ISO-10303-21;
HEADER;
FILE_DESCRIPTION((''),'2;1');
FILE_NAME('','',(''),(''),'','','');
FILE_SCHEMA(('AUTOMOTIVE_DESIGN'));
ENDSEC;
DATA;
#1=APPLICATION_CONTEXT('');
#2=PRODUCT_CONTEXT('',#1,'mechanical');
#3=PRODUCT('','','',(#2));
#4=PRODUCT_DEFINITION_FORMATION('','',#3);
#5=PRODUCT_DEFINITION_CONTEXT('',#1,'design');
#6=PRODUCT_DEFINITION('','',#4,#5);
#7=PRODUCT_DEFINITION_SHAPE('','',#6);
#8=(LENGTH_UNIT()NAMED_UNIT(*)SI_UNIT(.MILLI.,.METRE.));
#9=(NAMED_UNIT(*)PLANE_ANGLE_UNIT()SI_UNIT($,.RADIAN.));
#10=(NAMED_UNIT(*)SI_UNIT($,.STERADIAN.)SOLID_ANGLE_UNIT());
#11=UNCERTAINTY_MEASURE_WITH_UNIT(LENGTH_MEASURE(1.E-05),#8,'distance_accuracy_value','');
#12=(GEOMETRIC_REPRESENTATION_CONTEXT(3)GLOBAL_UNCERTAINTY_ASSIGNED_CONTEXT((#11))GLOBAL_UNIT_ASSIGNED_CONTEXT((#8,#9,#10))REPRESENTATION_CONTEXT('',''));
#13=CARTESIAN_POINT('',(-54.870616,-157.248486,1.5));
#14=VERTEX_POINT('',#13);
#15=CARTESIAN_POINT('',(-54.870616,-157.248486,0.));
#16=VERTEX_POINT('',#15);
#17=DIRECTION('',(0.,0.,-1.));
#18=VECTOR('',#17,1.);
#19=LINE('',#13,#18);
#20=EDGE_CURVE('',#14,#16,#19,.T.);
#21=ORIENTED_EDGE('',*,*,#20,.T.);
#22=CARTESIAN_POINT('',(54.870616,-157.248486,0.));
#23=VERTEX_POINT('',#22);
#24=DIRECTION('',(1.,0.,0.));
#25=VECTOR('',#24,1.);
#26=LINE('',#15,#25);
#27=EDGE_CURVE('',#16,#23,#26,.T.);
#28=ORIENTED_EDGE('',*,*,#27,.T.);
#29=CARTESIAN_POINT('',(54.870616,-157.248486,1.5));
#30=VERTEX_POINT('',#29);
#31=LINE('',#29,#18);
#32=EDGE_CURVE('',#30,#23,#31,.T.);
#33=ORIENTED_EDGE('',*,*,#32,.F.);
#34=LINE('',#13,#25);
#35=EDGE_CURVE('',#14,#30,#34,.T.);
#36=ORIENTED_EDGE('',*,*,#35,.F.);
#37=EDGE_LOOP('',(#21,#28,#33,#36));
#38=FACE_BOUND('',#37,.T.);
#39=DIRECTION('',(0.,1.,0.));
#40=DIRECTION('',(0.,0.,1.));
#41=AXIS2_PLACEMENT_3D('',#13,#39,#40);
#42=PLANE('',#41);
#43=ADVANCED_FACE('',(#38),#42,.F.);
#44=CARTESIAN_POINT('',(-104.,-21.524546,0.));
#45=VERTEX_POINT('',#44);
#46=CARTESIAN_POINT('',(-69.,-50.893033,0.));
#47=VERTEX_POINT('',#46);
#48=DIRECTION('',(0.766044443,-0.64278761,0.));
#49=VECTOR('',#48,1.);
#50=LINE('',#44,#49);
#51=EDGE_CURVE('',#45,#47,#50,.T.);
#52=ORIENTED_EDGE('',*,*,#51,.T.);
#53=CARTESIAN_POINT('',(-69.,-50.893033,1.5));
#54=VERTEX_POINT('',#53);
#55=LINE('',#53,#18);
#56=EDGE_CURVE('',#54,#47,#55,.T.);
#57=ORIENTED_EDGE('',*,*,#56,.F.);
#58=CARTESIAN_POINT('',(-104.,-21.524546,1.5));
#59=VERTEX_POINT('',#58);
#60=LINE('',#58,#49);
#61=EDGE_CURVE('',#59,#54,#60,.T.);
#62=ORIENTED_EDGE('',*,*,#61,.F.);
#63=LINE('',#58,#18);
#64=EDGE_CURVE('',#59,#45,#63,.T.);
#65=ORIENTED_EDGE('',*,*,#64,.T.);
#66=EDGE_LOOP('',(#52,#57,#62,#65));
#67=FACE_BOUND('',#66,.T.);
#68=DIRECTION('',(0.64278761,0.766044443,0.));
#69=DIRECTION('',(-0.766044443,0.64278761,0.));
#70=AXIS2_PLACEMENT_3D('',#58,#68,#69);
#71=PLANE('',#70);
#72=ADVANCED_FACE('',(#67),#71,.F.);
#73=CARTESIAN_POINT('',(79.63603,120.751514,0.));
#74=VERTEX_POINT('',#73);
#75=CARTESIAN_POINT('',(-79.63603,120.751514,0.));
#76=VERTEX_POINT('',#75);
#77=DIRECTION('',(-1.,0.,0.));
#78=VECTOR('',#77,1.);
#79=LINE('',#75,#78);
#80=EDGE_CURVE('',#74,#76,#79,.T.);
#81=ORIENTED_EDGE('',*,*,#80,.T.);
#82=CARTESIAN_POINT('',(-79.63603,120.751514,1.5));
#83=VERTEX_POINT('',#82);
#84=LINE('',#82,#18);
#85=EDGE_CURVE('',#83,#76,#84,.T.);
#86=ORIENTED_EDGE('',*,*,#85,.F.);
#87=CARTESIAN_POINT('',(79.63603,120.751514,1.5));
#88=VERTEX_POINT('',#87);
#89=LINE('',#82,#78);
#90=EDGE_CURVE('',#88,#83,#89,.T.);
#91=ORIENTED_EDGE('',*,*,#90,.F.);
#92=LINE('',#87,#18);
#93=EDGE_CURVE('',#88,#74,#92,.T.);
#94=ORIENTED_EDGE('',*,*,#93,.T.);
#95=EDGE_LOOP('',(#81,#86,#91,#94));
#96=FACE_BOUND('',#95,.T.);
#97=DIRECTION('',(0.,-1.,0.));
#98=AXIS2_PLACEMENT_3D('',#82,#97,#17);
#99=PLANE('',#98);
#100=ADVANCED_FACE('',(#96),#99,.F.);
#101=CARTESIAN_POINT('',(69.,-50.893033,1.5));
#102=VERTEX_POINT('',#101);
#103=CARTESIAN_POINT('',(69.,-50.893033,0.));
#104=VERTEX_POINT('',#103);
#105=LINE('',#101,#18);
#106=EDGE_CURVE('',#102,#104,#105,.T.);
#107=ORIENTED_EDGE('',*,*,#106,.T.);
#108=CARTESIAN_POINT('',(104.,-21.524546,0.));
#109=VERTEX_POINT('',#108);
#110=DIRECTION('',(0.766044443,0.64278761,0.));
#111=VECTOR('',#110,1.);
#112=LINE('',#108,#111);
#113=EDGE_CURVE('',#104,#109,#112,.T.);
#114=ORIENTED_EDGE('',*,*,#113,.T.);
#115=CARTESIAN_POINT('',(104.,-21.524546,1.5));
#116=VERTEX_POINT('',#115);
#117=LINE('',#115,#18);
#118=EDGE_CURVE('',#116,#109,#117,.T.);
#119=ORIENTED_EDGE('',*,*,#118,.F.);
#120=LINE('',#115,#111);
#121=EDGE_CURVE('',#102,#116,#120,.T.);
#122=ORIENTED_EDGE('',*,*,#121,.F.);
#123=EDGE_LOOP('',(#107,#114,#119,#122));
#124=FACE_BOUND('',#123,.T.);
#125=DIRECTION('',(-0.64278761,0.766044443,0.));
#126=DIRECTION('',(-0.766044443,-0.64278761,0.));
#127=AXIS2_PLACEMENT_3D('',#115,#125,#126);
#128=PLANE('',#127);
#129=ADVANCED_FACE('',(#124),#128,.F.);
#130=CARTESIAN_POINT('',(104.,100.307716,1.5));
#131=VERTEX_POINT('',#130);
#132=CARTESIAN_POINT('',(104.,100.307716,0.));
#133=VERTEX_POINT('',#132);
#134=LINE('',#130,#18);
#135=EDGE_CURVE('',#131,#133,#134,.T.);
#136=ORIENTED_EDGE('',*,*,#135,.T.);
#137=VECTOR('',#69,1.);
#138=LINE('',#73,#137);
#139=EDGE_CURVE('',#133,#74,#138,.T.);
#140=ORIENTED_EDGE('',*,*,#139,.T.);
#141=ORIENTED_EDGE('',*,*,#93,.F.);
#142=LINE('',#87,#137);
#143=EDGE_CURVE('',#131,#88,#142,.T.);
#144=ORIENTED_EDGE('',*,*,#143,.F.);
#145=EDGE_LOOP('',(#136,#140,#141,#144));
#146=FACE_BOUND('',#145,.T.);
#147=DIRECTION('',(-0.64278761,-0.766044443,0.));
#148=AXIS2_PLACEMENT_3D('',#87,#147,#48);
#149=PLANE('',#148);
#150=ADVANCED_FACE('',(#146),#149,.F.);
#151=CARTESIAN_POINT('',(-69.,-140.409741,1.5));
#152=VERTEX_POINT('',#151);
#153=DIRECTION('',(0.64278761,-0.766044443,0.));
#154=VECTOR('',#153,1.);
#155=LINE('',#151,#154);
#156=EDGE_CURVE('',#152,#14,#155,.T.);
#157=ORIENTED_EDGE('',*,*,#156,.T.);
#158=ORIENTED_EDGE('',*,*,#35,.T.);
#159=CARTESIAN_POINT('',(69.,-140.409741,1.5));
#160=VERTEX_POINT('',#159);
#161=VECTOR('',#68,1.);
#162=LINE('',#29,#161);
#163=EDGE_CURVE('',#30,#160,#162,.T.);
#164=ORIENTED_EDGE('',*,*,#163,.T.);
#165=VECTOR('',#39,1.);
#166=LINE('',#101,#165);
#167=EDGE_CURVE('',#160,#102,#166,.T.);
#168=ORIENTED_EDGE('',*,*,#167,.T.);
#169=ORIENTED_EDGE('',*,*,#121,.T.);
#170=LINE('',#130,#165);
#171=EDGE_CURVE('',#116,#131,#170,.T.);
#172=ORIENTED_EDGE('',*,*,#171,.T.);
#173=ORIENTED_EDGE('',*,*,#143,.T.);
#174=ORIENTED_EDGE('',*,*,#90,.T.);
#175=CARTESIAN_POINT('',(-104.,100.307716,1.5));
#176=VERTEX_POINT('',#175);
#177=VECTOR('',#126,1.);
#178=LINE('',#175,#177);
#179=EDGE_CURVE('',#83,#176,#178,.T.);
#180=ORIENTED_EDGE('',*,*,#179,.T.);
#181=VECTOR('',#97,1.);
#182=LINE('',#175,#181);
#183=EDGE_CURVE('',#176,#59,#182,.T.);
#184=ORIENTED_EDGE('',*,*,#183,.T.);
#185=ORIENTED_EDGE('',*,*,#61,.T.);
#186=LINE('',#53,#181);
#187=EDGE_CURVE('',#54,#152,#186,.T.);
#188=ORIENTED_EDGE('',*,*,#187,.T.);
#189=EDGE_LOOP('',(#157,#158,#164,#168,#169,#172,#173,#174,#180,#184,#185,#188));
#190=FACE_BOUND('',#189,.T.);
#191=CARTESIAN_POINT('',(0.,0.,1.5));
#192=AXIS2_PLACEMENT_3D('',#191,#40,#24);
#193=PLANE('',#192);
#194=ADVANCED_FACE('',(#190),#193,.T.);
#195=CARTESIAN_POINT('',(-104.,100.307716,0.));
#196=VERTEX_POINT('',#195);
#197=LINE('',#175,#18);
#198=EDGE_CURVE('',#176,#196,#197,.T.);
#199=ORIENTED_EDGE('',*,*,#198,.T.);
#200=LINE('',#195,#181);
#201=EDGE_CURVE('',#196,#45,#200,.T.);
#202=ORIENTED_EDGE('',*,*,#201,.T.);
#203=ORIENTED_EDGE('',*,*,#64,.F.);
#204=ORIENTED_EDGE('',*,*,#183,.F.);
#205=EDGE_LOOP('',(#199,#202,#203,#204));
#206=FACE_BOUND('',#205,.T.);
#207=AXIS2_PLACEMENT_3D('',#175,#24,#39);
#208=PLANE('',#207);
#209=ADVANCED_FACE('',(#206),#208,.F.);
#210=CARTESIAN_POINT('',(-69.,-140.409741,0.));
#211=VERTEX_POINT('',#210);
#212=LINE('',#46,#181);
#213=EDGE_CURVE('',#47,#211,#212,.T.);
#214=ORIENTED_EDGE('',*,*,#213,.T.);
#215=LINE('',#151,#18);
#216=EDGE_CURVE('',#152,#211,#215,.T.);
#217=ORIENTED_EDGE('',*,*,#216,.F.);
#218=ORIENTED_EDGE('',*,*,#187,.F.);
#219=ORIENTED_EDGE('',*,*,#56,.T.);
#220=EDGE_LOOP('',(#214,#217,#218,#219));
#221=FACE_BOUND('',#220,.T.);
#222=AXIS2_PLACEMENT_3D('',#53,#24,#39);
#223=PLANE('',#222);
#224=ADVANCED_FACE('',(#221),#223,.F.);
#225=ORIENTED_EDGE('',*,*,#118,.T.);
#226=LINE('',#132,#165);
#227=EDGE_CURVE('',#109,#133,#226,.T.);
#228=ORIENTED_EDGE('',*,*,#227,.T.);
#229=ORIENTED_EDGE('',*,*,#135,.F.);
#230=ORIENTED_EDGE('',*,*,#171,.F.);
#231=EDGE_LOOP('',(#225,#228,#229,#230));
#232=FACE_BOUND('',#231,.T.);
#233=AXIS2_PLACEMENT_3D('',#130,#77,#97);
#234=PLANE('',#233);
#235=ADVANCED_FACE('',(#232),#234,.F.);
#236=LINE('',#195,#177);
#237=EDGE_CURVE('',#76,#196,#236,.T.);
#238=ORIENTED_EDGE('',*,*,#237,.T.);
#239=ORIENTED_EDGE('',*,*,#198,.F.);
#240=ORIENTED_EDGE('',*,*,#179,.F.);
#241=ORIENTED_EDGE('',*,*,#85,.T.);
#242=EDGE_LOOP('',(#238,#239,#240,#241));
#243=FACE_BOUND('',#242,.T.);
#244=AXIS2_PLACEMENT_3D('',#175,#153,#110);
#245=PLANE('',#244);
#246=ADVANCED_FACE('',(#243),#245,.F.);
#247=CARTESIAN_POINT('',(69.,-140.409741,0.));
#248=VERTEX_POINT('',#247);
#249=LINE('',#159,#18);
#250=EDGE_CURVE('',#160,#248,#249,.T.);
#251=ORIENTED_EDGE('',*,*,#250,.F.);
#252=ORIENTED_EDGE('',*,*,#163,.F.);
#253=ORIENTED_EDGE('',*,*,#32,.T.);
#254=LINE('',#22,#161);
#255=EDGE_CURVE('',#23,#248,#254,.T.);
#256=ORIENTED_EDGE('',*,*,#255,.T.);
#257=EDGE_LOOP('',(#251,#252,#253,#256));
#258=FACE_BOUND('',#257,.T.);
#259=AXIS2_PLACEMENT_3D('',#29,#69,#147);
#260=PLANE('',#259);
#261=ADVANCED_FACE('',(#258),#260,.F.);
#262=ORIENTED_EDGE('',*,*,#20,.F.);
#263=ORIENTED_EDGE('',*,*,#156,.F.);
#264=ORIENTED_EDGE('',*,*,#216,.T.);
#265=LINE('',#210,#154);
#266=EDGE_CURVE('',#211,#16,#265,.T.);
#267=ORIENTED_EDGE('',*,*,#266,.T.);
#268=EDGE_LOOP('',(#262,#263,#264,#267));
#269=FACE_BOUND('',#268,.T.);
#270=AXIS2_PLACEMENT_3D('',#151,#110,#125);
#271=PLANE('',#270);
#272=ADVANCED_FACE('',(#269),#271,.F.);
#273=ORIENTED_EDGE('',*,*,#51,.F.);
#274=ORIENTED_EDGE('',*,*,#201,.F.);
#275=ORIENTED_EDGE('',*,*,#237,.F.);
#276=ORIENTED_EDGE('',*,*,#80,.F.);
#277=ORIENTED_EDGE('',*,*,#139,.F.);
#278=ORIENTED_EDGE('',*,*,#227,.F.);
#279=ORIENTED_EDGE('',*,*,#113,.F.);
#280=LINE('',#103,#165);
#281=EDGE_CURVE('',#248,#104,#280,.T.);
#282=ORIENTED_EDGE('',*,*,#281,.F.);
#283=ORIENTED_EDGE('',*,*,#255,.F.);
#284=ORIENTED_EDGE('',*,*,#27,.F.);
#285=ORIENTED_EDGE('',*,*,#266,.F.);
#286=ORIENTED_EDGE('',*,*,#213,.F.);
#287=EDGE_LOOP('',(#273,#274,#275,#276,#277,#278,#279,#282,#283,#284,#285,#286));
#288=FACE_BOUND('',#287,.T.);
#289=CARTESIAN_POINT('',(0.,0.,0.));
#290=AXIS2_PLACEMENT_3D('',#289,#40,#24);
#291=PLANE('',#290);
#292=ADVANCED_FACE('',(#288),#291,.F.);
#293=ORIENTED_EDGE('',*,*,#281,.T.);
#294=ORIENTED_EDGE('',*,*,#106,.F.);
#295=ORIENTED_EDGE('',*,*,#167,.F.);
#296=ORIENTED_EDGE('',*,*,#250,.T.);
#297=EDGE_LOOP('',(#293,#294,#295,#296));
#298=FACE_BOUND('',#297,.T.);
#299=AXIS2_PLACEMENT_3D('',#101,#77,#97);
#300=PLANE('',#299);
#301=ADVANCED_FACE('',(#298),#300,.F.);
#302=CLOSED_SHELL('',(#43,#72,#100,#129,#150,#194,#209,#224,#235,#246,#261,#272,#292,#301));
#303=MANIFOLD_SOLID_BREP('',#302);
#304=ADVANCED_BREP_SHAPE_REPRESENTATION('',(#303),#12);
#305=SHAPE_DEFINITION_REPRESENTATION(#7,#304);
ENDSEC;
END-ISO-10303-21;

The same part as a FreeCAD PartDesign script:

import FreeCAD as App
import Part
import Sketcher
Q = App.Units.Quantity

doc = App.newDocument("Part")
body = doc.addObject("PartDesign::Body", "Body")

# Sketch on XY plane
sketch1 = doc.addObject("Sketcher::SketchObject", "Sketch")
body.addObject(sketch1)
sketch1.AttachmentSupport = (doc.XY_Plane, [""])
sketch1.MapMode = "FlatFace"
sketch1.addGeometry([
    Part.LineSegment(App.Vector(-69, -140, 0), App.Vector(-55, -157, 0)),  # 0
    Part.LineSegment(App.Vector(-55, -157, 0), App.Vector(55, -157, 0)),  # 1
    Part.LineSegment(App.Vector(55, -157, 0), App.Vector(69, -140, 0)),  # 2
    Part.LineSegment(App.Vector(69, -140, 0), App.Vector(69, -51, 0)),  # 3
    Part.LineSegment(App.Vector(69, -51, 0), App.Vector(104, -22, 0)),  # 4
    Part.LineSegment(App.Vector(104, -22, 0), App.Vector(104, 100, 0)),  # 5
    Part.LineSegment(App.Vector(104, 100, 0), App.Vector(80, 121, 0)),  # 6
    Part.LineSegment(App.Vector(80, 121, 0), App.Vector(-80, 121, 0)),  # 7
    Part.LineSegment(App.Vector(-80, 121, 0), App.Vector(-104, 100, 0)),  # 8
    Part.LineSegment(App.Vector(-104, 100, 0), App.Vector(-104, -22, 0)),  # 9
    Part.LineSegment(App.Vector(-104, -22, 0), App.Vector(-69, -51, 0)),  # 10
    Part.LineSegment(App.Vector(-69, -51, 0), App.Vector(-69, -140, 0)),  # 11
], False)
sketch1.addConstraint([
    Sketcher.Constraint("Coincident", 0, 2, 1, 1),
    Sketcher.Constraint("Coincident", 1, 2, 2, 1),
    Sketcher.Constraint("Coincident", 2, 2, 3, 1),
    Sketcher.Constraint("Coincident", 3, 2, 4, 1),
    Sketcher.Constraint("Coincident", 4, 2, 5, 1),
    Sketcher.Constraint("Coincident", 5, 2, 6, 1),
    Sketcher.Constraint("Coincident", 6, 2, 7, 1),
    Sketcher.Constraint("Coincident", 7, 2, 8, 1),
    Sketcher.Constraint("Coincident", 8, 2, 9, 1),
    Sketcher.Constraint("Coincident", 9, 2, 10, 1),
    Sketcher.Constraint("Coincident", 10, 2, 11, 1),
    Sketcher.Constraint("Coincident", 11, 2, 0, 1),
    Sketcher.Constraint("Horizontal", 1),
    Sketcher.Constraint("Vertical", 3),
    Sketcher.Constraint("Vertical", 5),
    Sketcher.Constraint("Horizontal", 7),
    Sketcher.Constraint("Vertical", 9),
    Sketcher.Constraint("Vertical", 11),
    Sketcher.Constraint("Symmetric", 5, 2, 8, 2, -2),
    Sketcher.Constraint("Symmetric", 3, 2, 10, 2, -2),
    Sketcher.Constraint("Perpendicular", 0, 4),
    Sketcher.Constraint("Perpendicular", 2, 6),
    Sketcher.Constraint("Parallel", 4, 8),
    Sketcher.Constraint("Parallel", 6, 10),
    Sketcher.Constraint("Horizontal", 4, 2, 9, 2),
    Sketcher.Constraint("Horizontal", 2, 2, 11, 2),
    Sketcher.Constraint("Angle", 0, Q("-50 deg")),
    Sketcher.Constraint("DistanceX", -1, 1, 2, 2, 69.0),
    Sketcher.Constraint("DistanceX", -1, 1, 4, 2, 104.0),
    Sketcher.Constraint("DistanceY", 1, 2, 6, 2, 278.0),
    Sketcher.Constraint("DistanceX", 1, 1, 1, 2, 109.741232),
    Sketcher.Constraint("DistanceX", 7, 2, 7, 1, 159.27206),
    Sketcher.Constraint("DistanceY", 3, 1, 3, 2, 89.516708),
    Sketcher.Constraint("DistanceY", 2, 2, -1, 1, 140.409741),
])
pad1 = doc.addObject("PartDesign::Pad", "Pad")
body.addObject(pad1)
pad1.Profile = sketch1
pad1.Length = 1.5

doc.recompute()
